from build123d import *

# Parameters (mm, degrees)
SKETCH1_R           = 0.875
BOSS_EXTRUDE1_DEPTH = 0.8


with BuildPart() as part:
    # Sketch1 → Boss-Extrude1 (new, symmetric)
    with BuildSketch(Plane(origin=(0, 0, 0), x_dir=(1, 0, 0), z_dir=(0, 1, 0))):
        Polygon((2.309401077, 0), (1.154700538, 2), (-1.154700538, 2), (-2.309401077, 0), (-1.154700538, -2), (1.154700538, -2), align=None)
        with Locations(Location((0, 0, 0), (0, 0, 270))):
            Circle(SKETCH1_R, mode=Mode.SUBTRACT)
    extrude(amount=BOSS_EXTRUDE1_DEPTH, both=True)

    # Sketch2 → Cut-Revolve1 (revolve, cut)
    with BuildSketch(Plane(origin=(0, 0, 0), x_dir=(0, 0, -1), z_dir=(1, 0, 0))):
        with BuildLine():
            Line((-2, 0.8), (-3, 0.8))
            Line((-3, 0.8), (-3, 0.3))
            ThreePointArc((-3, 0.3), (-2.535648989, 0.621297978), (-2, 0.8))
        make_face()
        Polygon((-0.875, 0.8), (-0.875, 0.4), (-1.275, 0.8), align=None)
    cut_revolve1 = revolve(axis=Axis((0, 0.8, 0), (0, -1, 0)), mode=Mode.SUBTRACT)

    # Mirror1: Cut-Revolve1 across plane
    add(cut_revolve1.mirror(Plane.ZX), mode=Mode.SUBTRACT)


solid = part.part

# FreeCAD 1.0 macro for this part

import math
import FreeCAD as App
import Part
import Sketcher

V = App.Vector
Q = App.Units.Quantity


def add_polygon(sketch, points):
    """Adds a closed chain of lines whose ends are joined by coincident constraints."""
    first, n = sketch.GeometryCount, len(points)
    for a, b in zip(points, points[1:] + points[:1]):
        sketch.addGeometry(Part.LineSegment(App.Vector(*a, 0), App.Vector(*b, 0)), False)
    for i in range(n):
        sketch.addConstraint(Sketcher.Constraint("Coincident", first + i, 2, first + (i + 1) % n, 1))

doc = App.newDocument("Part")
body = doc.addObject("PartDesign::Body", "Body")

# Sketch on XZ plane
sketch1 = body.newObject("Sketcher::SketchObject", "Sketch")
sketch1.AttachmentSupport = (doc.getObject("XZ_Plane"), [""])
sketch1.MapMode = "FlatFace"
add_polygon(sketch1, [(2.309401, 0), (1.154701, -2), (-1.154701, -2), (-2.309401, 0), (-1.154701, 2), (1.154701, 2)])  # lines 0-5
sketch1.addGeometry(Part.Circle(V(0, 0, 0), V(0, 0, 1), 0.875), False)  # 6
sketch1.addConstraint([
    Sketcher.Constraint("Horizontal", 1),
    Sketcher.Constraint("Horizontal", 4),
    Sketcher.Constraint("Coincident", 6, 3, -1, 1),
    Sketcher.Constraint("Symmetric", 0, 2, 3, 2, -1, 1),
    Sketcher.Constraint("Symmetric", 2, 2, 5, 2, -1, 1),
    Sketcher.Constraint("PointOnObject", 2, 2, -1),
    Sketcher.Constraint("Parallel", 2, 5),
    Sketcher.Constraint("Vertical", 1, 2, 3, 2),
    Sketcher.Constraint("Diameter", 6, 1.75),
    Sketcher.Constraint("Angle", 0, Q("-120 deg")),
    Sketcher.Constraint("DistanceY", 0, 2, -1, 1, 2.0),
    Sketcher.Constraint("DistanceX", 1, 2, 1, 1, 2.309401),
])
pad1 = body.newObject("PartDesign::Pad", "Pad")
pad1.Profile = sketch1
pad1.Length = 1.6
pad1.Midplane = True

# Sketch on YZ plane
sketch2 = body.newObject("Sketcher::SketchObject", "Sketch001")
sketch2.AttachmentSupport = (doc.getObject("YZ_Plane"), [""])
sketch2.MapMode = "FlatFace"
sketch2.addGeometry(Part.LineSegment(V(0.8, 2, 0), V(0.8, 3, 0)), False)  # 0
sketch2.addGeometry(Part.LineSegment(V(0.8, 3, 0), V(0.3, 3, 0)), False)  # 1
sketch2.addGeometry(Part.ArcOfCircle(Part.Circle(V(-1.167556, 1.641222, 0), V(0, 0, 1), 2), math.radians(10.334179), math.radians(42.795924)), False)  # 2
add_polygon(sketch2, [(0.4, 0.875), (0.8, 0.875), (0.8, 1.275)])  # lines 3-5
sketch2.addConstraint([
    Sketcher.Constraint("Coincident", 0, 2, 1, 1),
    Sketcher.Constraint("Coincident", 1, 2, 2, 2),
    Sketcher.Constraint("Coincident", 2, 1, 0, 1),
    Sketcher.Constraint("Vertical", 0),
    Sketcher.Constraint("Horizontal", 1),
    Sketcher.Constraint("Horizontal", 3),
    Sketcher.Constraint("Vertical", 4),
    Sketcher.Constraint("Vertical", 2, 1, 3, 2),
    Sketcher.Constraint("Equal", 3, 4),
    Sketcher.Constraint("Radius", 2, 2.0),
    Sketcher.Constraint("DistanceY", 0, 1, 0, 2, 1.0),
    Sketcher.Constraint("DistanceX", 1, 2, 1, 1, 0.5),
    Sketcher.Constraint("DistanceX", 3, 1, 3, 2, 0.4),
    Sketcher.Constraint("DistanceY", -1, 1, 0, 2, 3.0),
    Sketcher.Constraint("DistanceX", -1, 1, 0, 2, 0.8),
    Sketcher.Constraint("DistanceY", -1, 1, 3, 2, 0.875),
])
groove = body.newObject("PartDesign::Groove", "Groove")
groove.Profile = sketch2
groove.ReferenceAxis = (sketch2, ["H_Axis"])
groove.Angle = 360
doc.recompute()

mirrored = body.newObject("PartDesign::Mirrored", "Mirrored")
mirrored.Originals = [groove]
mirrored.MirrorPlane = (doc.getObject("XZ_Plane"), [""])
body.Tip = mirrored

doc.recompute()
